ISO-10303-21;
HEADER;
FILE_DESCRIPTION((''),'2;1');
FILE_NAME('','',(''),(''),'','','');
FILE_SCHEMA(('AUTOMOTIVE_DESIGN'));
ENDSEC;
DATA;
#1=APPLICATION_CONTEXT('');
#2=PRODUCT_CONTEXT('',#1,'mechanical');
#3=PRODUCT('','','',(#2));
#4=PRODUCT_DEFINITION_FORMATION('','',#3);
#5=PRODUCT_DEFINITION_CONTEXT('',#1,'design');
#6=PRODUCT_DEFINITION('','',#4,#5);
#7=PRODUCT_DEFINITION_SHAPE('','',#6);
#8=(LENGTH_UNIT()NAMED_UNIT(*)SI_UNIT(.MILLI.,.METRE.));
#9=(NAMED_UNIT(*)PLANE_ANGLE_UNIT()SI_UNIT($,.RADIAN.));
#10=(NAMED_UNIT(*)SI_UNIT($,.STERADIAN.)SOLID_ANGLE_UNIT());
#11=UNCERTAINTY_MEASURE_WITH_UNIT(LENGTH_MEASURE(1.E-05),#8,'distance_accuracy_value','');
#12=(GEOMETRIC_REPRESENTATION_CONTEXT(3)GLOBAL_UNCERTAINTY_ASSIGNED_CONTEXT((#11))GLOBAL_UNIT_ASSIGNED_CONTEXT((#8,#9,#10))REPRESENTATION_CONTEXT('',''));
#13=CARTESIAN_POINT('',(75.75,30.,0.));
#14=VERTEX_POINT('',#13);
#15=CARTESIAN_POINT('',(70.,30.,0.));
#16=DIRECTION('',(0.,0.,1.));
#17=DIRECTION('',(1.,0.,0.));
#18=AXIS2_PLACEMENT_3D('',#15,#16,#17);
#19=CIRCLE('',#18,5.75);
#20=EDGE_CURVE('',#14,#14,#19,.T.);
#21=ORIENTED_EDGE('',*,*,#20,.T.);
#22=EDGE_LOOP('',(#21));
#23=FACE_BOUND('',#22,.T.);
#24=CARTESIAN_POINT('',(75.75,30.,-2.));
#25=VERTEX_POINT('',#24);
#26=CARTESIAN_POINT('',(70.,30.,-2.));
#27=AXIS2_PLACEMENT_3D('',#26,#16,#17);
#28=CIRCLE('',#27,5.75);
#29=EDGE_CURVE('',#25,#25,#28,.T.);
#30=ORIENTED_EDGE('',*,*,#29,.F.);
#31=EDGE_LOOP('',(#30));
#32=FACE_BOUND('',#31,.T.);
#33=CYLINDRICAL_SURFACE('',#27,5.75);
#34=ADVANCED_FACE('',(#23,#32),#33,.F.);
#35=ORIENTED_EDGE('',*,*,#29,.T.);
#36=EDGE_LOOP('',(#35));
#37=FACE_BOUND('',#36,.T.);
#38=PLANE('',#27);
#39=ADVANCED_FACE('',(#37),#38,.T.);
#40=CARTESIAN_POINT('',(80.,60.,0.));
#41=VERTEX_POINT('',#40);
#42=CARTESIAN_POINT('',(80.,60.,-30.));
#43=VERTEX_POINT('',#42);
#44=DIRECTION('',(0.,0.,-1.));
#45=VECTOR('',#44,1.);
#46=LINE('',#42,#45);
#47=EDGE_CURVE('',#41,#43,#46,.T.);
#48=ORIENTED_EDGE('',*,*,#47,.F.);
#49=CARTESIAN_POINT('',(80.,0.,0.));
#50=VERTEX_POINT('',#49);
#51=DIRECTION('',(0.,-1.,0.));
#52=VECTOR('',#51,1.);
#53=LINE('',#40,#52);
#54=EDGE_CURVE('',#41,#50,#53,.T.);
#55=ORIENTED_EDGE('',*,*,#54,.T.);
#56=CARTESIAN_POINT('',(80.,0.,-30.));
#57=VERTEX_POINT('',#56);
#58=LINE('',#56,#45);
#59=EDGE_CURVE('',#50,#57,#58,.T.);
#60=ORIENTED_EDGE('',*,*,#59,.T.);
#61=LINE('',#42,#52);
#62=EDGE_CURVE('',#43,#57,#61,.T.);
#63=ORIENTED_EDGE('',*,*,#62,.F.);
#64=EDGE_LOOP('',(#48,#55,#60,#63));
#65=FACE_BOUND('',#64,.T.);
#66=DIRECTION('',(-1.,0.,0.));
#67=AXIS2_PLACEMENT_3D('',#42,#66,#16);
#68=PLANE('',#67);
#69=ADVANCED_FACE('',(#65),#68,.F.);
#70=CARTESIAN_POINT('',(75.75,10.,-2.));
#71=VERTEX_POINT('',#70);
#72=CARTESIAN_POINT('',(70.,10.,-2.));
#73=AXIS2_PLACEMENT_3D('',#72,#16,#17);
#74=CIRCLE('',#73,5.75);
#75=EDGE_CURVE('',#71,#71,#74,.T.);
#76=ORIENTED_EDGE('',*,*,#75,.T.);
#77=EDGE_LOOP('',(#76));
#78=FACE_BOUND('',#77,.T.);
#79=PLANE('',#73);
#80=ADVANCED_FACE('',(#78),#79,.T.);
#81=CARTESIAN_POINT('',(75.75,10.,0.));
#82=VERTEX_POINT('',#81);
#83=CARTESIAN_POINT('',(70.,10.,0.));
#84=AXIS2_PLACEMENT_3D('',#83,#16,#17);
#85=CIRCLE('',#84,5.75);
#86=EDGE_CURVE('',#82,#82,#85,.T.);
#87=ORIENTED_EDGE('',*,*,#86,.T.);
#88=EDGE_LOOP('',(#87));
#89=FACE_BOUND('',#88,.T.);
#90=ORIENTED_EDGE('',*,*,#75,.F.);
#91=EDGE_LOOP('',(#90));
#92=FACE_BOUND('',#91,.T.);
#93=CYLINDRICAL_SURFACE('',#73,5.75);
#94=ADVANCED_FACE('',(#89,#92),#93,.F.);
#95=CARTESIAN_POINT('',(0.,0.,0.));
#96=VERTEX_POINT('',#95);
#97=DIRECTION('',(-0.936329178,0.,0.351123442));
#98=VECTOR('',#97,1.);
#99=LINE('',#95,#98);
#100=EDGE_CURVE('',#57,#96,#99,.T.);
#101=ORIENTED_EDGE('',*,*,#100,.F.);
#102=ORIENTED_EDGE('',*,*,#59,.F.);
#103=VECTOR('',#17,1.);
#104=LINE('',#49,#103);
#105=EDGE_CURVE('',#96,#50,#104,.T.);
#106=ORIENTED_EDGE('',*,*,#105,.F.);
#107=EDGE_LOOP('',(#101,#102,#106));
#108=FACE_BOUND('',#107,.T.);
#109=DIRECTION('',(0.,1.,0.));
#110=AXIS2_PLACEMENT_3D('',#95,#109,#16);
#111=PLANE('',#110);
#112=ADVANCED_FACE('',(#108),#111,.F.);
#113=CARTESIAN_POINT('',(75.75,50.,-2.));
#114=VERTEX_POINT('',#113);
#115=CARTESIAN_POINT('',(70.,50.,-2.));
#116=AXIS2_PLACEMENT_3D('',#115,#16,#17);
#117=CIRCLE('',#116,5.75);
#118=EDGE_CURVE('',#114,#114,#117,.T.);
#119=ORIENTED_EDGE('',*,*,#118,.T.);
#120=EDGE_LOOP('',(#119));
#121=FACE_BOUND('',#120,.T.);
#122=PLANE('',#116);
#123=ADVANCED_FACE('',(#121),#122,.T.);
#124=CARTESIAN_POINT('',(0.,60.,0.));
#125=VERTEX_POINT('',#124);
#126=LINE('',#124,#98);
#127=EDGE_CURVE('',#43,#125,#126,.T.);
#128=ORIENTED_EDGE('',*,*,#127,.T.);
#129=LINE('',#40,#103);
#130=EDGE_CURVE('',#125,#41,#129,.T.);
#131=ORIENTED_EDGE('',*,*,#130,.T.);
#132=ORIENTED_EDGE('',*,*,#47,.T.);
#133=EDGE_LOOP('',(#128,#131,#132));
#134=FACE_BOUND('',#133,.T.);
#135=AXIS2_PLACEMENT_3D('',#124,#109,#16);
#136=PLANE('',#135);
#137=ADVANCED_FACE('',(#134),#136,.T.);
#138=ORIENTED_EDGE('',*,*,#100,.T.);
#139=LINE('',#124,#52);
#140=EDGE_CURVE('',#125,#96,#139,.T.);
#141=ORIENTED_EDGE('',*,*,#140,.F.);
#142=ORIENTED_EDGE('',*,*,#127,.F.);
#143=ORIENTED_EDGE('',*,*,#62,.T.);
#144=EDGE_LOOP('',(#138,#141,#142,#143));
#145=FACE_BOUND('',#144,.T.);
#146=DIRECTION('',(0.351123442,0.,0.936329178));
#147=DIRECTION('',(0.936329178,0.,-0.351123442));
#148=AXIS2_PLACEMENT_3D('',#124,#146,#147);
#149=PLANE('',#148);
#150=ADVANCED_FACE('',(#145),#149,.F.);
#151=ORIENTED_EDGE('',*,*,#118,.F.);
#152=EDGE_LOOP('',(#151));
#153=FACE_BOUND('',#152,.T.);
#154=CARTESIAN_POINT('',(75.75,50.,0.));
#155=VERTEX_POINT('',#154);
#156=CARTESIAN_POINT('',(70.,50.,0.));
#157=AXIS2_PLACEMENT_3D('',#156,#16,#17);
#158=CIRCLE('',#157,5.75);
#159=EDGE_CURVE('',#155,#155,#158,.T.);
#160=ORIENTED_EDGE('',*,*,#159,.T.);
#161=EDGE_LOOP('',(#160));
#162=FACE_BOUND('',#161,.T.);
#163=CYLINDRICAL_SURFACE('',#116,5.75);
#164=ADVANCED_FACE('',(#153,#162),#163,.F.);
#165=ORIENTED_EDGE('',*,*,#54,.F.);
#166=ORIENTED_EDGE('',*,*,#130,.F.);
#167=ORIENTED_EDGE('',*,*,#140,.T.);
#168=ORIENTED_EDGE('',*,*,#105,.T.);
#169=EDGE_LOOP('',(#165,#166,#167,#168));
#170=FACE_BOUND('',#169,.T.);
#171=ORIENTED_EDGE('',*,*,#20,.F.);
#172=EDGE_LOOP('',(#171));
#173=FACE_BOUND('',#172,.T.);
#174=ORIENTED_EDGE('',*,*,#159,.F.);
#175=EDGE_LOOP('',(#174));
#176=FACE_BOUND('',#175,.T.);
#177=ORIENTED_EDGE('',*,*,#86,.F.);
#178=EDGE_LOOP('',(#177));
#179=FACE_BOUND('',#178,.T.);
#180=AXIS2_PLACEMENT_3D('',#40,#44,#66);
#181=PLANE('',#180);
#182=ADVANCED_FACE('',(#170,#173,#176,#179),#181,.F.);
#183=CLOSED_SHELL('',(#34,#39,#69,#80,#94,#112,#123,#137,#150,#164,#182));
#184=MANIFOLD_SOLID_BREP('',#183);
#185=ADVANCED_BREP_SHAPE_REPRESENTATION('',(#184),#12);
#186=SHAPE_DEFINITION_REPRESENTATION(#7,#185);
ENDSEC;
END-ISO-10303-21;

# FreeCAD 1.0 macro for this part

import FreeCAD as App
import Part
import Sketcher

V = App.Vector


def add_polygon(sketch, points):
    """Adds a closed chain of lines whose ends are joined by coincident constraints."""
    first, n = sketch.GeometryCount, len(points)
    for a, b in zip(points, points[1:] + points[:1]):
        sketch.addGeometry(Part.LineSegment(App.Vector(*a, 0), App.Vector(*b, 0)), False)
    for i in range(n):
        sketch.addConstraint(Sketcher.Constraint("Coincident", first + i, 2, first + (i + 1) % n, 1))

doc = App.newDocument("Part")
body = doc.addObject("PartDesign::Body", "Body")

# Sketch on XZ plane
sketch1 = doc.addObject("Sketcher::SketchObject", "Sketch")
body.addObject(sketch1)
sketch1.AttachmentSupport = (doc.XZ_Plane, [""])
sketch1.MapMode = "FlatFace"
add_polygon(sketch1, [(80, -30), (0, 0), (80, 0)])  # lines 0-2
sketch1.addConstraint([
    Sketcher.Constraint("Horizontal", 1),
    Sketcher.Constraint("Vertical", 2),
    Sketcher.Constraint("Coincident", 0, 2, -1, 1),
    Sketcher.Constraint("DistanceX", 1, 1, 1, 2, 80.0),
    Sketcher.Constraint("DistanceY", 2, 2, 2, 1, 30.0),
])
pad1 = doc.addObject("PartDesign::Pad", "Pad")
body.addObject(pad1)
pad1.Profile = sketch1
pad1.Length = 60
pad1.Reversed = True

# Sketch on XY plane
sketch2 = doc.addObject("Sketcher::SketchObject", "Sketch001")
body.addObject(sketch2)
sketch2.AttachmentSupport = (doc.XY_Plane, [""])
sketch2.MapMode = "FlatFace"
sketch2.addGeometry([
    Part.Circle(V(70, 50, 0), V(0, 0, 1), 6),
    Part.Circle(V(70, 30, 0), V(0, 0, 1), 6),
    Part.Circle(V(70, 10, 0), V(0, 0, 1), 6),
], False)
sketch2.addConstraint([
    Sketcher.Constraint("Equal", 0, 1),
    Sketcher.Constraint("Equal", 1, 2),
    Sketcher.Constraint("Vertical", 0, 3, 1, 3),
    Sketcher.Constraint("Vertical", 1, 3, 2, 3),
    Sketcher.Constraint("Diameter", 0, 11.5),
    Sketcher.Constraint("DistanceX", -1, 1, 0, 3, 70.0),
    Sketcher.Constraint("DistanceY", -1, 1, 0, 3, 50.0),
    Sketcher.Constraint("DistanceY", -1, 1, 1, 3, 30.0),
    Sketcher.Constraint("DistanceY", -1, 1, 2, 3, 10.0),
])
pocket1 = doc.addObject("PartDesign::Pocket", "Pocket")
body.addObject(pocket1)
pocket1.Profile = sketch2
pocket1.Length = 2

doc.recompute()
